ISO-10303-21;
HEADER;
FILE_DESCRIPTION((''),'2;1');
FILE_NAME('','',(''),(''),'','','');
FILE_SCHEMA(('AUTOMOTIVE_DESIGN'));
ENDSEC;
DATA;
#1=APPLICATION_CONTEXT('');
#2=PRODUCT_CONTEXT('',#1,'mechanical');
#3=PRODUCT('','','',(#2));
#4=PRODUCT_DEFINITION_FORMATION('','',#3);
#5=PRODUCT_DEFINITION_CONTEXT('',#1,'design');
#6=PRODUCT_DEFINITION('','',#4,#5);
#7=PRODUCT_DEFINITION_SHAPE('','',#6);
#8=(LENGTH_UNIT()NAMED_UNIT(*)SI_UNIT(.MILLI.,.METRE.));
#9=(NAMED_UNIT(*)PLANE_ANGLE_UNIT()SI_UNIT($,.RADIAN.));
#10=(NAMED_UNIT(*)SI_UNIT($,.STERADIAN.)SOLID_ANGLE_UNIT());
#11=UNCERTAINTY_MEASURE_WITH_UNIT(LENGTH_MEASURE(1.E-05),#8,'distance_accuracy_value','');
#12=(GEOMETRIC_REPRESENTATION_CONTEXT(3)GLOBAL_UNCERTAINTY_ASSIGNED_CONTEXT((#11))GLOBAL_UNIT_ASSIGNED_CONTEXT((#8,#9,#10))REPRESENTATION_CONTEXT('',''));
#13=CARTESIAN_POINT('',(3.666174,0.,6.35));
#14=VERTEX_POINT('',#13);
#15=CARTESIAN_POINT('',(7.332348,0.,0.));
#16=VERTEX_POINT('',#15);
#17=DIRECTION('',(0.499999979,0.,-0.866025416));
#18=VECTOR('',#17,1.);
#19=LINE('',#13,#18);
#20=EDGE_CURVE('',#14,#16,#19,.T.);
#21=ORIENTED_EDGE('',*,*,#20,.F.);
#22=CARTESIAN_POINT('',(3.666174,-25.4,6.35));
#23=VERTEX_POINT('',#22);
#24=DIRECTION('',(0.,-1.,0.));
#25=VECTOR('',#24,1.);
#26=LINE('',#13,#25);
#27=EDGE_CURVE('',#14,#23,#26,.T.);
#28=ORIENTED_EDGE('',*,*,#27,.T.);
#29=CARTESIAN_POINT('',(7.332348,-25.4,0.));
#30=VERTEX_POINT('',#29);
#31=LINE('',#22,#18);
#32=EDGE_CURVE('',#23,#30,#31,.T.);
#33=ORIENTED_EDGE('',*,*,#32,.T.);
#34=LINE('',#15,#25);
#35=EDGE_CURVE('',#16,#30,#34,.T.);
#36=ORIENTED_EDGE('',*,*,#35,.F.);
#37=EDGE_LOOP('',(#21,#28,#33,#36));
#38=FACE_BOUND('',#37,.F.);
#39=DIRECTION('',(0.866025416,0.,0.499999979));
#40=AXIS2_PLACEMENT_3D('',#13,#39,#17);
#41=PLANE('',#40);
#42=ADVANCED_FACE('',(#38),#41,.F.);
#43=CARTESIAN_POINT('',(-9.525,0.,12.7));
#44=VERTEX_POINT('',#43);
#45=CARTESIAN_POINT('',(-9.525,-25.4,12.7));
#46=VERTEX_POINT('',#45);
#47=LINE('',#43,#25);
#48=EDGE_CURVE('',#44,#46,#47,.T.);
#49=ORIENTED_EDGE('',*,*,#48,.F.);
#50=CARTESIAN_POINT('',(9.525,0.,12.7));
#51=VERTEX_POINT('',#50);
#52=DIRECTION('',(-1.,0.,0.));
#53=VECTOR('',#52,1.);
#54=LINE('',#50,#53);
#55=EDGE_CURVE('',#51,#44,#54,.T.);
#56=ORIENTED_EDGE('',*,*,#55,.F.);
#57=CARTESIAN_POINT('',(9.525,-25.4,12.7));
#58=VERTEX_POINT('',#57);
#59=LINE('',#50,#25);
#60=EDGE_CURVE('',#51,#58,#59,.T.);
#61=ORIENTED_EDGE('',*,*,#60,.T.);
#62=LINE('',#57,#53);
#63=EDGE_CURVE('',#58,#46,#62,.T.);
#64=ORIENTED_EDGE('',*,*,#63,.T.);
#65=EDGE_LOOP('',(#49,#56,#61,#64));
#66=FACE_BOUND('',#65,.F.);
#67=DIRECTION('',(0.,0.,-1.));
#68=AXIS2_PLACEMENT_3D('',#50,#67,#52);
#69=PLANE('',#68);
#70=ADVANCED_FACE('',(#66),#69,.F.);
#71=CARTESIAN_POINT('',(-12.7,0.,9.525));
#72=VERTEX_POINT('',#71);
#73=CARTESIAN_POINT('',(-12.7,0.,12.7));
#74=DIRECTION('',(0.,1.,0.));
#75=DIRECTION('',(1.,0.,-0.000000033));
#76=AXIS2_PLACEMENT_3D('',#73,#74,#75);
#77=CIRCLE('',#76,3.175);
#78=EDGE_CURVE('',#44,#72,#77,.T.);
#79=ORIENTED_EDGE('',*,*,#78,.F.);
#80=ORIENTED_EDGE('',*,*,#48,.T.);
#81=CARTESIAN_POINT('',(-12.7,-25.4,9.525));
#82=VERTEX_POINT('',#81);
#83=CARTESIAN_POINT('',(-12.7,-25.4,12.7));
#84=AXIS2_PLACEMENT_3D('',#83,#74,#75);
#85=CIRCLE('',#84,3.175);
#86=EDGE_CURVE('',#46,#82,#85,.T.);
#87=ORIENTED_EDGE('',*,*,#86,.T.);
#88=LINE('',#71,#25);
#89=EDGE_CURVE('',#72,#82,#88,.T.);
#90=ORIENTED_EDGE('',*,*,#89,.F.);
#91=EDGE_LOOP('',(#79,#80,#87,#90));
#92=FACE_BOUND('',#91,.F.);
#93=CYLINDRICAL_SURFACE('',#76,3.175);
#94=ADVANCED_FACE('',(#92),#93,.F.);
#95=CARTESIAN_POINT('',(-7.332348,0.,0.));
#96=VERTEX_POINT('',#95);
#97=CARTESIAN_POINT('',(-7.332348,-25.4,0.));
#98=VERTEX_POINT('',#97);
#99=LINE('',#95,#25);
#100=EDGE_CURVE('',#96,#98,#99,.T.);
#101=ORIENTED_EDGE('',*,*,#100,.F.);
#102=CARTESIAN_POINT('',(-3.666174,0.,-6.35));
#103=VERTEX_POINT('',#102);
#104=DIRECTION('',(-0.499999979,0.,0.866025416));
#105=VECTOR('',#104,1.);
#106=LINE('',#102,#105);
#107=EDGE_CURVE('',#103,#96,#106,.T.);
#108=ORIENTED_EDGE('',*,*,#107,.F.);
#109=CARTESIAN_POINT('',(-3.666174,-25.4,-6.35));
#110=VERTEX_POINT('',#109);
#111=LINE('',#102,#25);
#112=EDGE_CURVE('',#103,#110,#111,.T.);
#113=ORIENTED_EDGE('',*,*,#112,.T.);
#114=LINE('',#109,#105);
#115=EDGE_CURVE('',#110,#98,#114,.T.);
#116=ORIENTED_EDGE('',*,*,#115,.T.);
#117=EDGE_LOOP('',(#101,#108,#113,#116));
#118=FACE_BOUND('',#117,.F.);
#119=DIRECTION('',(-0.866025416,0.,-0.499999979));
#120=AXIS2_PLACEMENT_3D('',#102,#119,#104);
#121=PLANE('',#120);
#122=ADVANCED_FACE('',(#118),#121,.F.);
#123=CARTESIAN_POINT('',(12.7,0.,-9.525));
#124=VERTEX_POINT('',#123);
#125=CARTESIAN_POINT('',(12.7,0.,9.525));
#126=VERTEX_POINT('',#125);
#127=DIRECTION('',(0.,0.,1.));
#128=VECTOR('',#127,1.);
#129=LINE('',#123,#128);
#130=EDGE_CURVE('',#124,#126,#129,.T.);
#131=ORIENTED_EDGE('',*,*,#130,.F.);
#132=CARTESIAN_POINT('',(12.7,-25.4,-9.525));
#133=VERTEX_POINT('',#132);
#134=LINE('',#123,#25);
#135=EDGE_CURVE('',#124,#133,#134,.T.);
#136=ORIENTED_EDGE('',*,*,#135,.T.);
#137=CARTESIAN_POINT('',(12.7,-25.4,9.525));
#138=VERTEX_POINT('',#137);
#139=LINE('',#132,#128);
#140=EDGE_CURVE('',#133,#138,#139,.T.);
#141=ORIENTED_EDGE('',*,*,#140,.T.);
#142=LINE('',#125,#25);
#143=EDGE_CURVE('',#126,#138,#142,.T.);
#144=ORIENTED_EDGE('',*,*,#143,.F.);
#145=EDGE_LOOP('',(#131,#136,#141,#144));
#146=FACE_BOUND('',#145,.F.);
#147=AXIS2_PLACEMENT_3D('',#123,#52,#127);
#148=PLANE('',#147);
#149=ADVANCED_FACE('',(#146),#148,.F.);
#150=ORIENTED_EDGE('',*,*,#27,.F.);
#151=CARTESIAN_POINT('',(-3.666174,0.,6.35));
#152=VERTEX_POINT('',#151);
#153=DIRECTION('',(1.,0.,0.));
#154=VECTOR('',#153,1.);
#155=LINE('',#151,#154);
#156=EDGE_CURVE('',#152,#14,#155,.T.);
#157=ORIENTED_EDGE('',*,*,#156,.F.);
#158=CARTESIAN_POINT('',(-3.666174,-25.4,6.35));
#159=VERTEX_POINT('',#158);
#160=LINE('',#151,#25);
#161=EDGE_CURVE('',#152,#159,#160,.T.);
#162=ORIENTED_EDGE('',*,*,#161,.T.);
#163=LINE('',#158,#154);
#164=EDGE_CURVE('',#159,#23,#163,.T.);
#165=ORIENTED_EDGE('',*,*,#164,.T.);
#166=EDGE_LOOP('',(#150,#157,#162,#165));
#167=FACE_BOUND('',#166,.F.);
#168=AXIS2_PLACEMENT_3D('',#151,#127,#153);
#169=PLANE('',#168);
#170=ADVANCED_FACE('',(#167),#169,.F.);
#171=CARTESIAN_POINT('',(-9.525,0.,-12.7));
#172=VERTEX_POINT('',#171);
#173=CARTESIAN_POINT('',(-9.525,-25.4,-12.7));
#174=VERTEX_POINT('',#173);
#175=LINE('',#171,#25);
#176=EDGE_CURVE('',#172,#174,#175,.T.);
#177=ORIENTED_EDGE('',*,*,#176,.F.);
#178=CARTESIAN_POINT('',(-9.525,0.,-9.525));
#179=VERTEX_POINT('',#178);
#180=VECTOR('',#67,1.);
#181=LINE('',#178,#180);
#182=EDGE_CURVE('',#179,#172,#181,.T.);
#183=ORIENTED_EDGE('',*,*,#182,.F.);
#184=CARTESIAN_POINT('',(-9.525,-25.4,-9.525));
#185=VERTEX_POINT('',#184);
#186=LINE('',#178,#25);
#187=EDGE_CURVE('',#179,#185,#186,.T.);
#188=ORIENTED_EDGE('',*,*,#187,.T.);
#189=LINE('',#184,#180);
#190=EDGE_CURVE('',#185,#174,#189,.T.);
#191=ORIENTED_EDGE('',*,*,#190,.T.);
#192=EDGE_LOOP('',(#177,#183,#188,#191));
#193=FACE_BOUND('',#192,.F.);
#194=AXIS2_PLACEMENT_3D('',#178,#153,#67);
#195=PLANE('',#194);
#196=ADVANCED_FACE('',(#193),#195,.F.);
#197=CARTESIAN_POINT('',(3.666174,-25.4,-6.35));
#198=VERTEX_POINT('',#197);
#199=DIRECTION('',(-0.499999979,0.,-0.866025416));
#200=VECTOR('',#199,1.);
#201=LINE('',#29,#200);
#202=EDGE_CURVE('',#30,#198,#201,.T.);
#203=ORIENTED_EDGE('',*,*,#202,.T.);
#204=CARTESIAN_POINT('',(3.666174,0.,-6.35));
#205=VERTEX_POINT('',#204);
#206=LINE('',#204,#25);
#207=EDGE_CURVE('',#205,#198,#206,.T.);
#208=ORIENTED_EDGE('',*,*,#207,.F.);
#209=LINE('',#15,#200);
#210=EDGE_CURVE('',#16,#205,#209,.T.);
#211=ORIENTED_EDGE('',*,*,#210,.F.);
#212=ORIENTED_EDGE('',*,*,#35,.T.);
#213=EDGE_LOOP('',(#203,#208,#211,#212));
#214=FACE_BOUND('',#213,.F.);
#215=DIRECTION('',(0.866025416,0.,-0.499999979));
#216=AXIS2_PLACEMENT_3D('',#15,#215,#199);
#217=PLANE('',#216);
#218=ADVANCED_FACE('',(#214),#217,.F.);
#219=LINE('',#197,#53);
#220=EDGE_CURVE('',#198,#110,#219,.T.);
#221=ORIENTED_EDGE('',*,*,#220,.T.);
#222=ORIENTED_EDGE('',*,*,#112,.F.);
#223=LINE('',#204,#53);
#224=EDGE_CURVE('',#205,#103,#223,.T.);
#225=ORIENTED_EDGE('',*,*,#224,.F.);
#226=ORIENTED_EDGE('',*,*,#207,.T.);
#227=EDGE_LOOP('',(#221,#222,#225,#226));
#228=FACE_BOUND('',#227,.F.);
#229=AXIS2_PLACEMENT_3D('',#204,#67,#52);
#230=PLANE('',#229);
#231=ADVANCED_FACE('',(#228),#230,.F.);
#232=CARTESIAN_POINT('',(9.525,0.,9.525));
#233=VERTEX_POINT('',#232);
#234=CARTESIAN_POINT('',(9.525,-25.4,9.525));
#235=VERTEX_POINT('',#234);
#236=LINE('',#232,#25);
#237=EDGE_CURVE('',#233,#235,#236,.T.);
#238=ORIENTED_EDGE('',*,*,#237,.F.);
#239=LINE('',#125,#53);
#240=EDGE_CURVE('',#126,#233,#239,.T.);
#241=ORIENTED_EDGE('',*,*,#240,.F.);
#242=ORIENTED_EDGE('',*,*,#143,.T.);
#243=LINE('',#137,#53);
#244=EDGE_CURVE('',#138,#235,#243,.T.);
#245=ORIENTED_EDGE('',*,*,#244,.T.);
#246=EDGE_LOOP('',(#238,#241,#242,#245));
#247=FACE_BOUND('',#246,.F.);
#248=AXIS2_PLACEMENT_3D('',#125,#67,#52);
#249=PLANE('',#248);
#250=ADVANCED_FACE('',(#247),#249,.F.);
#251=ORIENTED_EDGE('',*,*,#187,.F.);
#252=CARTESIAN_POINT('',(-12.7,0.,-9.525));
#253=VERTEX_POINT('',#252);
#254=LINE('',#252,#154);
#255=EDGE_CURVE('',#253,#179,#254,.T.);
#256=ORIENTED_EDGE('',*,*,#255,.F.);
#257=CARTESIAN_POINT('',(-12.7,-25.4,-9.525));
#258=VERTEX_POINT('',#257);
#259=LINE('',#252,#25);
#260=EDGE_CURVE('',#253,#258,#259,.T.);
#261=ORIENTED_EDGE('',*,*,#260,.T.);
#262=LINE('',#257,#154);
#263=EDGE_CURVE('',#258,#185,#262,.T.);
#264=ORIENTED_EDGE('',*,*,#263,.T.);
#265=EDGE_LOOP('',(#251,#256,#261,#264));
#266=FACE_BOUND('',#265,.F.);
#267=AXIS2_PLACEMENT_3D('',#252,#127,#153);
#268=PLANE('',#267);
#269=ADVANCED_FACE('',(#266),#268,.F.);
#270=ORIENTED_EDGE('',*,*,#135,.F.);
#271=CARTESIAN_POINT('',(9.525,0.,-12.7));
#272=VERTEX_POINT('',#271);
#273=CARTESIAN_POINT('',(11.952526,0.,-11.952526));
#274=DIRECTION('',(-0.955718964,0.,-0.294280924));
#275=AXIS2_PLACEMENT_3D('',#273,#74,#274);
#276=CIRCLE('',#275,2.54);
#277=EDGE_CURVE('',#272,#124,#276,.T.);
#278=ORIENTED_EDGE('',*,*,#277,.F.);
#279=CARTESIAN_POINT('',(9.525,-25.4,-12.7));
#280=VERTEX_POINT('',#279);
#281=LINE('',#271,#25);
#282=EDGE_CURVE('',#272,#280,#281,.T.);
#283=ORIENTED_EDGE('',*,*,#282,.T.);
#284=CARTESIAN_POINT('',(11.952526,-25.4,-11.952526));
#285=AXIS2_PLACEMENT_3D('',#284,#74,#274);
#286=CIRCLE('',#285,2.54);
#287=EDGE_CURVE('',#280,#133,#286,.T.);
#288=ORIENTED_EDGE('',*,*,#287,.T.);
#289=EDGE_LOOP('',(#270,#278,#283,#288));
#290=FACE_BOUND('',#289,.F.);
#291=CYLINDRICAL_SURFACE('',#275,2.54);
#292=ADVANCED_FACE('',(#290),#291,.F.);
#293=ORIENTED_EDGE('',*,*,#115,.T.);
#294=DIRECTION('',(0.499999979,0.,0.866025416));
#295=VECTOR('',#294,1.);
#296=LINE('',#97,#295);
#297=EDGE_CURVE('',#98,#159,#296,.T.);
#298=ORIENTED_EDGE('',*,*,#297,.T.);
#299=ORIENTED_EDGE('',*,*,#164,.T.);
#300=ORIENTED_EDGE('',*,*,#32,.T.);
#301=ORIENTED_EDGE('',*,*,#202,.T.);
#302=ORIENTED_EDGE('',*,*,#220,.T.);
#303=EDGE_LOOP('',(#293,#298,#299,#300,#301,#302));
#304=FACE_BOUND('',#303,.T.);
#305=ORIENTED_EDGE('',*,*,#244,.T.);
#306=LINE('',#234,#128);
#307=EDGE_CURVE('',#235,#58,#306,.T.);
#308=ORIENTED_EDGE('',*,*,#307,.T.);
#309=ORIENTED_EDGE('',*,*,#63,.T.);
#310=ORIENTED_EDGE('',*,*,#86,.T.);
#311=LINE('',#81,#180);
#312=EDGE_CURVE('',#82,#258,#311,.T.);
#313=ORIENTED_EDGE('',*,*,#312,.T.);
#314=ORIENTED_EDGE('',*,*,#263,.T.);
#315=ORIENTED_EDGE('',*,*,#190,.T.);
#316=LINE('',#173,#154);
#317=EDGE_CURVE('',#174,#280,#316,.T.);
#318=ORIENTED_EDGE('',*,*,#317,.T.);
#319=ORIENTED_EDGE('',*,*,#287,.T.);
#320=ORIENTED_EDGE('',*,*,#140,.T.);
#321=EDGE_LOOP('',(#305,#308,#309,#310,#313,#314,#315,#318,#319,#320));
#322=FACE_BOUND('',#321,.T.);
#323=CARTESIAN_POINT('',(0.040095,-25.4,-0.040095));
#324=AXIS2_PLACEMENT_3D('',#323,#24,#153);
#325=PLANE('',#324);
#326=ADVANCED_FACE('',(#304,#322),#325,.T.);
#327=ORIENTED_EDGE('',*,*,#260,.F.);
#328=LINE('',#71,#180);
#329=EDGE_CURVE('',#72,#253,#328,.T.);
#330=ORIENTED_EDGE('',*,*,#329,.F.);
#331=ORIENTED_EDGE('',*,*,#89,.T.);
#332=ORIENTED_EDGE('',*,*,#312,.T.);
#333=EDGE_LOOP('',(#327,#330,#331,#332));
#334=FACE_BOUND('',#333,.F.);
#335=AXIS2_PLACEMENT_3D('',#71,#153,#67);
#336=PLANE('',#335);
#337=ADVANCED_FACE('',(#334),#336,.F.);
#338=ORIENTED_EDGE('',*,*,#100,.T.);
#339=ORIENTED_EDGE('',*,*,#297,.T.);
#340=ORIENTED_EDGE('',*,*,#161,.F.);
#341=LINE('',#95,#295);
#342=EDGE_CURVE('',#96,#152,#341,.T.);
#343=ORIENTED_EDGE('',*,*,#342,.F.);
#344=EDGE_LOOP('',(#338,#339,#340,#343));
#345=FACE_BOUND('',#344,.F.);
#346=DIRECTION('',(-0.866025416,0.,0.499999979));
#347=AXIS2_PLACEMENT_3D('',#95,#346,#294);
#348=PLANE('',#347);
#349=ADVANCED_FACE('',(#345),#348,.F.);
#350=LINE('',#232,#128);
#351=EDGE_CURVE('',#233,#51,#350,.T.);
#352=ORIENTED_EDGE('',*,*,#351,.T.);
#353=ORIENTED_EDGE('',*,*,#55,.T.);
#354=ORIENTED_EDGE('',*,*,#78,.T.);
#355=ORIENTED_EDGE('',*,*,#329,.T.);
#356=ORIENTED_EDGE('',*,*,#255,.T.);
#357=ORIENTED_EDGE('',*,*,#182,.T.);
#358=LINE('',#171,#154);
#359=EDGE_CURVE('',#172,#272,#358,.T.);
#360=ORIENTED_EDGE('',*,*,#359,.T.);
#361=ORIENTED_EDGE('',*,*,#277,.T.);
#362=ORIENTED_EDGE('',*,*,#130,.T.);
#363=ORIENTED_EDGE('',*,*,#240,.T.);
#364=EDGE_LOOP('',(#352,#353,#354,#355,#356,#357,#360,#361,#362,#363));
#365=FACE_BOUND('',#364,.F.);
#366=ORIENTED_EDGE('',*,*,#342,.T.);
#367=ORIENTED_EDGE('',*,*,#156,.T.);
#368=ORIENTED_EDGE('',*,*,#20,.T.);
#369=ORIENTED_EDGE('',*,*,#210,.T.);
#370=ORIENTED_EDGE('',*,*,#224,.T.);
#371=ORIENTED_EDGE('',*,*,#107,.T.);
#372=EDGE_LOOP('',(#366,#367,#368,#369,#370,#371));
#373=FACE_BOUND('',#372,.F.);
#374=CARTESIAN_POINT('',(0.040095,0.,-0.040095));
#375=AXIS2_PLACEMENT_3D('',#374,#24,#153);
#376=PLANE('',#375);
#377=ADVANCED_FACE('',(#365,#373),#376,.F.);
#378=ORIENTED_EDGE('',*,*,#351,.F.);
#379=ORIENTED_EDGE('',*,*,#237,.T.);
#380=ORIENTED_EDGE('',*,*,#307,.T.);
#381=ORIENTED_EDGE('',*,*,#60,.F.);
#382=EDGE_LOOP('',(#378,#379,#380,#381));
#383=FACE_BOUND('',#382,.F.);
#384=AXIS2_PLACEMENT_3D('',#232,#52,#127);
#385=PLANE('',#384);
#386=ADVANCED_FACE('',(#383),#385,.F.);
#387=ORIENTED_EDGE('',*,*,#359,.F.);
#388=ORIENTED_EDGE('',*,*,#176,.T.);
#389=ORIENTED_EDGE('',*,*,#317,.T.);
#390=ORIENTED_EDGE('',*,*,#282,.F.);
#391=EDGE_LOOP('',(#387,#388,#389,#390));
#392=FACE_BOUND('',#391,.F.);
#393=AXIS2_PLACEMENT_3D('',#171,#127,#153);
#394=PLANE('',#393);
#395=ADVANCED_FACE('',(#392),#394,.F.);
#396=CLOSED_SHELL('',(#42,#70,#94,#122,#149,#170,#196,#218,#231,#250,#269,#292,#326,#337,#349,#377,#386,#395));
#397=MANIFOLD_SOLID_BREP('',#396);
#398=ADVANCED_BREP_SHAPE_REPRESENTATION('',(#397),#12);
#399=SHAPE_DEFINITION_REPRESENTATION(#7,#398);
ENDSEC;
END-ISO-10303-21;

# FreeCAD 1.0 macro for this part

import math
import FreeCAD as App
import Part
import Sketcher
Q = App.Units.Quantity

doc = App.newDocument("Part")
params = doc.addObject("Spreadsheet::Sheet", "Params")
for row, (alias, value) in enumerate([
    ("sketch1_radius", "0.1 in"),
    ("sketch1_radius2", "0.125 in"),
    ("pad1_length", "1 in"),
], start=1):
    params.set(f"A{row}", alias)
    params.set(f"B{row}", "=" + value)
    params.setAlias(f"B{row}", alias)

body = doc.addObject("PartDesign::Body", "Body")

# Sketch on XZ plane
sketch1 = doc.addObject("Sketcher::SketchObject", "Sketch")
body.addObject(sketch1)
sketch1.AttachmentSupport = (doc.XZ_Plane, [""])
sketch1.MapMode = "FlatFace"
sketch1.addGeometry([
    Part.LineSegment(App.Vector(9.5, 9.5, 0), App.Vector(9.5, 12.7, 0)),  # 0
    Part.LineSegment(App.Vector(9.5, 12.7, 0), App.Vector(-9.5, 12.7, 0)),  # 1
    Part.ArcOfCircle(Part.Circle(App.Vector(-12.7, 12.7, 0), App.Vector(0, 0, 1), 3.2), math.radians(-90), math.radians(0)),  # 2
    Part.LineSegment(App.Vector(-12.7, 9.5, 0), App.Vector(-12.7, -9.5, 0)),  # 3
    Part.LineSegment(App.Vector(-12.7, -9.5, 0), App.Vector(-9.5, -9.5, 0)),  # 4
    Part.LineSegment(App.Vector(-9.5, -9.5, 0), App.Vector(-9.5, -12.7, 0)),  # 5
    Part.LineSegment(App.Vector(-9.5, -12.7, 0), App.Vector(9.5, -12.7, 0)),  # 6
    Part.ArcOfCircle(Part.Circle(App.Vector(12, -12, 0), App.Vector(0, 0, 1), 2.5), math.radians(73), math.radians(197)),  # 7
    Part.LineSegment(App.Vector(12.7, -9.5, 0), App.Vector(12.7, 9.5, 0)),  # 8
    Part.LineSegment(App.Vector(12.7, 9.5, 0), App.Vector(9.5, 9.5, 0)),  # 9
    Part.LineSegment(App.Vector(-7.3, 0, 0), App.Vector(-3.7, 6.3, 0)),  # 10
    Part.LineSegment(App.Vector(-3.7, 6.3, 0), App.Vector(3.7, 6.3, 0)),  # 11
    Part.LineSegment(App.Vector(3.7, 6.3, 0), App.Vector(7.3, 0, 0)),  # 12
    Part.LineSegment(App.Vector(7.3, 0, 0), App.Vector(3.7, -6.3, 0)),  # 13
    Part.LineSegment(App.Vector(3.7, -6.3, 0), App.Vector(-3.7, -6.3, 0)),  # 14
    Part.LineSegment(App.Vector(-3.7, -6.3, 0), App.Vector(-7.3, 0, 0)),  # 15
], False)
sketch1.addConstraint([
    Sketcher.Constraint("Coincident", 0, 2, 1, 1),
    Sketcher.Constraint("Coincident", 1, 2, 2, 2),
    Sketcher.Constraint("Coincident", 2, 1, 3, 1),
    Sketcher.Constraint("Coincident", 3, 2, 4, 1),
    Sketcher.Constraint("Coincident", 4, 2, 5, 1),
    Sketcher.Constraint("Coincident", 5, 2, 6, 1),
    Sketcher.Constraint("Coincident", 6, 2, 7, 2),
    Sketcher.Constraint("Coincident", 7, 1, 8, 1),
    Sketcher.Constraint("Coincident", 8, 2, 9, 1),
    Sketcher.Constraint("Coincident", 9, 2, 0, 1),
    Sketcher.Constraint("Coincident", 10, 2, 11, 1),
    Sketcher.Constraint("Coincident", 11, 2, 12, 1),
    Sketcher.Constraint("Coincident", 12, 2, 13, 1),
    Sketcher.Constraint("Coincident", 13, 2, 14, 1),
    Sketcher.Constraint("Coincident", 14, 2, 15, 1),
    Sketcher.Constraint("Coincident", 15, 2, 10, 1),
    Sketcher.Constraint("Vertical", 0),
    Sketcher.Constraint("Horizontal", 1),
    Sketcher.Constraint("Vertical", 3),
    Sketcher.Constraint("Horizontal", 4),
    Sketcher.Constraint("Vertical", 5),
    Sketcher.Constraint("Horizontal", 6),
    Sketcher.Constraint("Vertical", 8),
    Sketcher.Constraint("Horizontal", 9),
    Sketcher.Constraint("Horizontal", 11),
    Sketcher.Constraint("Horizontal", 14),
    Sketcher.Constraint("Symmetric", 0, 2, 5, 2, -1, 1),
    Sketcher.Constraint("Symmetric", 2, 1, 7, 1, -1, 1),
    Sketcher.Constraint("Symmetric", 10, 2, 13, 2, -1, 1),
    Sketcher.Constraint("Symmetric", 12, 2, 15, 2, -1, 1),
    Sketcher.Constraint("PointOnObject", 12, 2, -1),
    Sketcher.Constraint("Parallel", 12, 15),
    Sketcher.Constraint("Horizontal", 2, 3, 0, 2),
    Sketcher.Constraint("Horizontal", 4, 2, 7, 1),
    Sketcher.Constraint("Horizontal", 2, 1, 8, 2),
    Sketcher.Constraint("Vertical", 1, 2, 4, 2),
    Sketcher.Constraint("Vertical", 0, 2, 6, 2),
    Sketcher.Constraint("Vertical", 11, 2, 13, 2),
    Sketcher.Constraint("Equal", 9, 0),
    Sketcher.Constraint("Equal", 6, 3),
    Sketcher.Constraint("Radius", 7, Q("0.1 in")),
    Sketcher.Constraint("Angle", 10, Q("60.000001 deg")),
    Sketcher.Constraint("Radius", 2, Q("0.125 in")),
    Sketcher.Constraint("DistanceY", 5, 2, 1, 2, Q("1 in")),
    Sketcher.Constraint("DistanceY", 13, 2, 11, 2, Q("0.5 in")),
    Sketcher.Constraint("DistanceX", 11, 1, 11, 2, Q("7.332348 mm")),
])
sketch1.setExpression("Constraints[40]", "Params.sketch1_radius")
sketch1.setExpression("Constraints[42]", "Params.sketch1_radius2")
pad1 = doc.addObject("PartDesign::Pad", "Pad")
body.addObject(pad1)
pad1.Profile = sketch1
pad1.setExpression("Length", "Params.pad1_length")

doc.recompute()
